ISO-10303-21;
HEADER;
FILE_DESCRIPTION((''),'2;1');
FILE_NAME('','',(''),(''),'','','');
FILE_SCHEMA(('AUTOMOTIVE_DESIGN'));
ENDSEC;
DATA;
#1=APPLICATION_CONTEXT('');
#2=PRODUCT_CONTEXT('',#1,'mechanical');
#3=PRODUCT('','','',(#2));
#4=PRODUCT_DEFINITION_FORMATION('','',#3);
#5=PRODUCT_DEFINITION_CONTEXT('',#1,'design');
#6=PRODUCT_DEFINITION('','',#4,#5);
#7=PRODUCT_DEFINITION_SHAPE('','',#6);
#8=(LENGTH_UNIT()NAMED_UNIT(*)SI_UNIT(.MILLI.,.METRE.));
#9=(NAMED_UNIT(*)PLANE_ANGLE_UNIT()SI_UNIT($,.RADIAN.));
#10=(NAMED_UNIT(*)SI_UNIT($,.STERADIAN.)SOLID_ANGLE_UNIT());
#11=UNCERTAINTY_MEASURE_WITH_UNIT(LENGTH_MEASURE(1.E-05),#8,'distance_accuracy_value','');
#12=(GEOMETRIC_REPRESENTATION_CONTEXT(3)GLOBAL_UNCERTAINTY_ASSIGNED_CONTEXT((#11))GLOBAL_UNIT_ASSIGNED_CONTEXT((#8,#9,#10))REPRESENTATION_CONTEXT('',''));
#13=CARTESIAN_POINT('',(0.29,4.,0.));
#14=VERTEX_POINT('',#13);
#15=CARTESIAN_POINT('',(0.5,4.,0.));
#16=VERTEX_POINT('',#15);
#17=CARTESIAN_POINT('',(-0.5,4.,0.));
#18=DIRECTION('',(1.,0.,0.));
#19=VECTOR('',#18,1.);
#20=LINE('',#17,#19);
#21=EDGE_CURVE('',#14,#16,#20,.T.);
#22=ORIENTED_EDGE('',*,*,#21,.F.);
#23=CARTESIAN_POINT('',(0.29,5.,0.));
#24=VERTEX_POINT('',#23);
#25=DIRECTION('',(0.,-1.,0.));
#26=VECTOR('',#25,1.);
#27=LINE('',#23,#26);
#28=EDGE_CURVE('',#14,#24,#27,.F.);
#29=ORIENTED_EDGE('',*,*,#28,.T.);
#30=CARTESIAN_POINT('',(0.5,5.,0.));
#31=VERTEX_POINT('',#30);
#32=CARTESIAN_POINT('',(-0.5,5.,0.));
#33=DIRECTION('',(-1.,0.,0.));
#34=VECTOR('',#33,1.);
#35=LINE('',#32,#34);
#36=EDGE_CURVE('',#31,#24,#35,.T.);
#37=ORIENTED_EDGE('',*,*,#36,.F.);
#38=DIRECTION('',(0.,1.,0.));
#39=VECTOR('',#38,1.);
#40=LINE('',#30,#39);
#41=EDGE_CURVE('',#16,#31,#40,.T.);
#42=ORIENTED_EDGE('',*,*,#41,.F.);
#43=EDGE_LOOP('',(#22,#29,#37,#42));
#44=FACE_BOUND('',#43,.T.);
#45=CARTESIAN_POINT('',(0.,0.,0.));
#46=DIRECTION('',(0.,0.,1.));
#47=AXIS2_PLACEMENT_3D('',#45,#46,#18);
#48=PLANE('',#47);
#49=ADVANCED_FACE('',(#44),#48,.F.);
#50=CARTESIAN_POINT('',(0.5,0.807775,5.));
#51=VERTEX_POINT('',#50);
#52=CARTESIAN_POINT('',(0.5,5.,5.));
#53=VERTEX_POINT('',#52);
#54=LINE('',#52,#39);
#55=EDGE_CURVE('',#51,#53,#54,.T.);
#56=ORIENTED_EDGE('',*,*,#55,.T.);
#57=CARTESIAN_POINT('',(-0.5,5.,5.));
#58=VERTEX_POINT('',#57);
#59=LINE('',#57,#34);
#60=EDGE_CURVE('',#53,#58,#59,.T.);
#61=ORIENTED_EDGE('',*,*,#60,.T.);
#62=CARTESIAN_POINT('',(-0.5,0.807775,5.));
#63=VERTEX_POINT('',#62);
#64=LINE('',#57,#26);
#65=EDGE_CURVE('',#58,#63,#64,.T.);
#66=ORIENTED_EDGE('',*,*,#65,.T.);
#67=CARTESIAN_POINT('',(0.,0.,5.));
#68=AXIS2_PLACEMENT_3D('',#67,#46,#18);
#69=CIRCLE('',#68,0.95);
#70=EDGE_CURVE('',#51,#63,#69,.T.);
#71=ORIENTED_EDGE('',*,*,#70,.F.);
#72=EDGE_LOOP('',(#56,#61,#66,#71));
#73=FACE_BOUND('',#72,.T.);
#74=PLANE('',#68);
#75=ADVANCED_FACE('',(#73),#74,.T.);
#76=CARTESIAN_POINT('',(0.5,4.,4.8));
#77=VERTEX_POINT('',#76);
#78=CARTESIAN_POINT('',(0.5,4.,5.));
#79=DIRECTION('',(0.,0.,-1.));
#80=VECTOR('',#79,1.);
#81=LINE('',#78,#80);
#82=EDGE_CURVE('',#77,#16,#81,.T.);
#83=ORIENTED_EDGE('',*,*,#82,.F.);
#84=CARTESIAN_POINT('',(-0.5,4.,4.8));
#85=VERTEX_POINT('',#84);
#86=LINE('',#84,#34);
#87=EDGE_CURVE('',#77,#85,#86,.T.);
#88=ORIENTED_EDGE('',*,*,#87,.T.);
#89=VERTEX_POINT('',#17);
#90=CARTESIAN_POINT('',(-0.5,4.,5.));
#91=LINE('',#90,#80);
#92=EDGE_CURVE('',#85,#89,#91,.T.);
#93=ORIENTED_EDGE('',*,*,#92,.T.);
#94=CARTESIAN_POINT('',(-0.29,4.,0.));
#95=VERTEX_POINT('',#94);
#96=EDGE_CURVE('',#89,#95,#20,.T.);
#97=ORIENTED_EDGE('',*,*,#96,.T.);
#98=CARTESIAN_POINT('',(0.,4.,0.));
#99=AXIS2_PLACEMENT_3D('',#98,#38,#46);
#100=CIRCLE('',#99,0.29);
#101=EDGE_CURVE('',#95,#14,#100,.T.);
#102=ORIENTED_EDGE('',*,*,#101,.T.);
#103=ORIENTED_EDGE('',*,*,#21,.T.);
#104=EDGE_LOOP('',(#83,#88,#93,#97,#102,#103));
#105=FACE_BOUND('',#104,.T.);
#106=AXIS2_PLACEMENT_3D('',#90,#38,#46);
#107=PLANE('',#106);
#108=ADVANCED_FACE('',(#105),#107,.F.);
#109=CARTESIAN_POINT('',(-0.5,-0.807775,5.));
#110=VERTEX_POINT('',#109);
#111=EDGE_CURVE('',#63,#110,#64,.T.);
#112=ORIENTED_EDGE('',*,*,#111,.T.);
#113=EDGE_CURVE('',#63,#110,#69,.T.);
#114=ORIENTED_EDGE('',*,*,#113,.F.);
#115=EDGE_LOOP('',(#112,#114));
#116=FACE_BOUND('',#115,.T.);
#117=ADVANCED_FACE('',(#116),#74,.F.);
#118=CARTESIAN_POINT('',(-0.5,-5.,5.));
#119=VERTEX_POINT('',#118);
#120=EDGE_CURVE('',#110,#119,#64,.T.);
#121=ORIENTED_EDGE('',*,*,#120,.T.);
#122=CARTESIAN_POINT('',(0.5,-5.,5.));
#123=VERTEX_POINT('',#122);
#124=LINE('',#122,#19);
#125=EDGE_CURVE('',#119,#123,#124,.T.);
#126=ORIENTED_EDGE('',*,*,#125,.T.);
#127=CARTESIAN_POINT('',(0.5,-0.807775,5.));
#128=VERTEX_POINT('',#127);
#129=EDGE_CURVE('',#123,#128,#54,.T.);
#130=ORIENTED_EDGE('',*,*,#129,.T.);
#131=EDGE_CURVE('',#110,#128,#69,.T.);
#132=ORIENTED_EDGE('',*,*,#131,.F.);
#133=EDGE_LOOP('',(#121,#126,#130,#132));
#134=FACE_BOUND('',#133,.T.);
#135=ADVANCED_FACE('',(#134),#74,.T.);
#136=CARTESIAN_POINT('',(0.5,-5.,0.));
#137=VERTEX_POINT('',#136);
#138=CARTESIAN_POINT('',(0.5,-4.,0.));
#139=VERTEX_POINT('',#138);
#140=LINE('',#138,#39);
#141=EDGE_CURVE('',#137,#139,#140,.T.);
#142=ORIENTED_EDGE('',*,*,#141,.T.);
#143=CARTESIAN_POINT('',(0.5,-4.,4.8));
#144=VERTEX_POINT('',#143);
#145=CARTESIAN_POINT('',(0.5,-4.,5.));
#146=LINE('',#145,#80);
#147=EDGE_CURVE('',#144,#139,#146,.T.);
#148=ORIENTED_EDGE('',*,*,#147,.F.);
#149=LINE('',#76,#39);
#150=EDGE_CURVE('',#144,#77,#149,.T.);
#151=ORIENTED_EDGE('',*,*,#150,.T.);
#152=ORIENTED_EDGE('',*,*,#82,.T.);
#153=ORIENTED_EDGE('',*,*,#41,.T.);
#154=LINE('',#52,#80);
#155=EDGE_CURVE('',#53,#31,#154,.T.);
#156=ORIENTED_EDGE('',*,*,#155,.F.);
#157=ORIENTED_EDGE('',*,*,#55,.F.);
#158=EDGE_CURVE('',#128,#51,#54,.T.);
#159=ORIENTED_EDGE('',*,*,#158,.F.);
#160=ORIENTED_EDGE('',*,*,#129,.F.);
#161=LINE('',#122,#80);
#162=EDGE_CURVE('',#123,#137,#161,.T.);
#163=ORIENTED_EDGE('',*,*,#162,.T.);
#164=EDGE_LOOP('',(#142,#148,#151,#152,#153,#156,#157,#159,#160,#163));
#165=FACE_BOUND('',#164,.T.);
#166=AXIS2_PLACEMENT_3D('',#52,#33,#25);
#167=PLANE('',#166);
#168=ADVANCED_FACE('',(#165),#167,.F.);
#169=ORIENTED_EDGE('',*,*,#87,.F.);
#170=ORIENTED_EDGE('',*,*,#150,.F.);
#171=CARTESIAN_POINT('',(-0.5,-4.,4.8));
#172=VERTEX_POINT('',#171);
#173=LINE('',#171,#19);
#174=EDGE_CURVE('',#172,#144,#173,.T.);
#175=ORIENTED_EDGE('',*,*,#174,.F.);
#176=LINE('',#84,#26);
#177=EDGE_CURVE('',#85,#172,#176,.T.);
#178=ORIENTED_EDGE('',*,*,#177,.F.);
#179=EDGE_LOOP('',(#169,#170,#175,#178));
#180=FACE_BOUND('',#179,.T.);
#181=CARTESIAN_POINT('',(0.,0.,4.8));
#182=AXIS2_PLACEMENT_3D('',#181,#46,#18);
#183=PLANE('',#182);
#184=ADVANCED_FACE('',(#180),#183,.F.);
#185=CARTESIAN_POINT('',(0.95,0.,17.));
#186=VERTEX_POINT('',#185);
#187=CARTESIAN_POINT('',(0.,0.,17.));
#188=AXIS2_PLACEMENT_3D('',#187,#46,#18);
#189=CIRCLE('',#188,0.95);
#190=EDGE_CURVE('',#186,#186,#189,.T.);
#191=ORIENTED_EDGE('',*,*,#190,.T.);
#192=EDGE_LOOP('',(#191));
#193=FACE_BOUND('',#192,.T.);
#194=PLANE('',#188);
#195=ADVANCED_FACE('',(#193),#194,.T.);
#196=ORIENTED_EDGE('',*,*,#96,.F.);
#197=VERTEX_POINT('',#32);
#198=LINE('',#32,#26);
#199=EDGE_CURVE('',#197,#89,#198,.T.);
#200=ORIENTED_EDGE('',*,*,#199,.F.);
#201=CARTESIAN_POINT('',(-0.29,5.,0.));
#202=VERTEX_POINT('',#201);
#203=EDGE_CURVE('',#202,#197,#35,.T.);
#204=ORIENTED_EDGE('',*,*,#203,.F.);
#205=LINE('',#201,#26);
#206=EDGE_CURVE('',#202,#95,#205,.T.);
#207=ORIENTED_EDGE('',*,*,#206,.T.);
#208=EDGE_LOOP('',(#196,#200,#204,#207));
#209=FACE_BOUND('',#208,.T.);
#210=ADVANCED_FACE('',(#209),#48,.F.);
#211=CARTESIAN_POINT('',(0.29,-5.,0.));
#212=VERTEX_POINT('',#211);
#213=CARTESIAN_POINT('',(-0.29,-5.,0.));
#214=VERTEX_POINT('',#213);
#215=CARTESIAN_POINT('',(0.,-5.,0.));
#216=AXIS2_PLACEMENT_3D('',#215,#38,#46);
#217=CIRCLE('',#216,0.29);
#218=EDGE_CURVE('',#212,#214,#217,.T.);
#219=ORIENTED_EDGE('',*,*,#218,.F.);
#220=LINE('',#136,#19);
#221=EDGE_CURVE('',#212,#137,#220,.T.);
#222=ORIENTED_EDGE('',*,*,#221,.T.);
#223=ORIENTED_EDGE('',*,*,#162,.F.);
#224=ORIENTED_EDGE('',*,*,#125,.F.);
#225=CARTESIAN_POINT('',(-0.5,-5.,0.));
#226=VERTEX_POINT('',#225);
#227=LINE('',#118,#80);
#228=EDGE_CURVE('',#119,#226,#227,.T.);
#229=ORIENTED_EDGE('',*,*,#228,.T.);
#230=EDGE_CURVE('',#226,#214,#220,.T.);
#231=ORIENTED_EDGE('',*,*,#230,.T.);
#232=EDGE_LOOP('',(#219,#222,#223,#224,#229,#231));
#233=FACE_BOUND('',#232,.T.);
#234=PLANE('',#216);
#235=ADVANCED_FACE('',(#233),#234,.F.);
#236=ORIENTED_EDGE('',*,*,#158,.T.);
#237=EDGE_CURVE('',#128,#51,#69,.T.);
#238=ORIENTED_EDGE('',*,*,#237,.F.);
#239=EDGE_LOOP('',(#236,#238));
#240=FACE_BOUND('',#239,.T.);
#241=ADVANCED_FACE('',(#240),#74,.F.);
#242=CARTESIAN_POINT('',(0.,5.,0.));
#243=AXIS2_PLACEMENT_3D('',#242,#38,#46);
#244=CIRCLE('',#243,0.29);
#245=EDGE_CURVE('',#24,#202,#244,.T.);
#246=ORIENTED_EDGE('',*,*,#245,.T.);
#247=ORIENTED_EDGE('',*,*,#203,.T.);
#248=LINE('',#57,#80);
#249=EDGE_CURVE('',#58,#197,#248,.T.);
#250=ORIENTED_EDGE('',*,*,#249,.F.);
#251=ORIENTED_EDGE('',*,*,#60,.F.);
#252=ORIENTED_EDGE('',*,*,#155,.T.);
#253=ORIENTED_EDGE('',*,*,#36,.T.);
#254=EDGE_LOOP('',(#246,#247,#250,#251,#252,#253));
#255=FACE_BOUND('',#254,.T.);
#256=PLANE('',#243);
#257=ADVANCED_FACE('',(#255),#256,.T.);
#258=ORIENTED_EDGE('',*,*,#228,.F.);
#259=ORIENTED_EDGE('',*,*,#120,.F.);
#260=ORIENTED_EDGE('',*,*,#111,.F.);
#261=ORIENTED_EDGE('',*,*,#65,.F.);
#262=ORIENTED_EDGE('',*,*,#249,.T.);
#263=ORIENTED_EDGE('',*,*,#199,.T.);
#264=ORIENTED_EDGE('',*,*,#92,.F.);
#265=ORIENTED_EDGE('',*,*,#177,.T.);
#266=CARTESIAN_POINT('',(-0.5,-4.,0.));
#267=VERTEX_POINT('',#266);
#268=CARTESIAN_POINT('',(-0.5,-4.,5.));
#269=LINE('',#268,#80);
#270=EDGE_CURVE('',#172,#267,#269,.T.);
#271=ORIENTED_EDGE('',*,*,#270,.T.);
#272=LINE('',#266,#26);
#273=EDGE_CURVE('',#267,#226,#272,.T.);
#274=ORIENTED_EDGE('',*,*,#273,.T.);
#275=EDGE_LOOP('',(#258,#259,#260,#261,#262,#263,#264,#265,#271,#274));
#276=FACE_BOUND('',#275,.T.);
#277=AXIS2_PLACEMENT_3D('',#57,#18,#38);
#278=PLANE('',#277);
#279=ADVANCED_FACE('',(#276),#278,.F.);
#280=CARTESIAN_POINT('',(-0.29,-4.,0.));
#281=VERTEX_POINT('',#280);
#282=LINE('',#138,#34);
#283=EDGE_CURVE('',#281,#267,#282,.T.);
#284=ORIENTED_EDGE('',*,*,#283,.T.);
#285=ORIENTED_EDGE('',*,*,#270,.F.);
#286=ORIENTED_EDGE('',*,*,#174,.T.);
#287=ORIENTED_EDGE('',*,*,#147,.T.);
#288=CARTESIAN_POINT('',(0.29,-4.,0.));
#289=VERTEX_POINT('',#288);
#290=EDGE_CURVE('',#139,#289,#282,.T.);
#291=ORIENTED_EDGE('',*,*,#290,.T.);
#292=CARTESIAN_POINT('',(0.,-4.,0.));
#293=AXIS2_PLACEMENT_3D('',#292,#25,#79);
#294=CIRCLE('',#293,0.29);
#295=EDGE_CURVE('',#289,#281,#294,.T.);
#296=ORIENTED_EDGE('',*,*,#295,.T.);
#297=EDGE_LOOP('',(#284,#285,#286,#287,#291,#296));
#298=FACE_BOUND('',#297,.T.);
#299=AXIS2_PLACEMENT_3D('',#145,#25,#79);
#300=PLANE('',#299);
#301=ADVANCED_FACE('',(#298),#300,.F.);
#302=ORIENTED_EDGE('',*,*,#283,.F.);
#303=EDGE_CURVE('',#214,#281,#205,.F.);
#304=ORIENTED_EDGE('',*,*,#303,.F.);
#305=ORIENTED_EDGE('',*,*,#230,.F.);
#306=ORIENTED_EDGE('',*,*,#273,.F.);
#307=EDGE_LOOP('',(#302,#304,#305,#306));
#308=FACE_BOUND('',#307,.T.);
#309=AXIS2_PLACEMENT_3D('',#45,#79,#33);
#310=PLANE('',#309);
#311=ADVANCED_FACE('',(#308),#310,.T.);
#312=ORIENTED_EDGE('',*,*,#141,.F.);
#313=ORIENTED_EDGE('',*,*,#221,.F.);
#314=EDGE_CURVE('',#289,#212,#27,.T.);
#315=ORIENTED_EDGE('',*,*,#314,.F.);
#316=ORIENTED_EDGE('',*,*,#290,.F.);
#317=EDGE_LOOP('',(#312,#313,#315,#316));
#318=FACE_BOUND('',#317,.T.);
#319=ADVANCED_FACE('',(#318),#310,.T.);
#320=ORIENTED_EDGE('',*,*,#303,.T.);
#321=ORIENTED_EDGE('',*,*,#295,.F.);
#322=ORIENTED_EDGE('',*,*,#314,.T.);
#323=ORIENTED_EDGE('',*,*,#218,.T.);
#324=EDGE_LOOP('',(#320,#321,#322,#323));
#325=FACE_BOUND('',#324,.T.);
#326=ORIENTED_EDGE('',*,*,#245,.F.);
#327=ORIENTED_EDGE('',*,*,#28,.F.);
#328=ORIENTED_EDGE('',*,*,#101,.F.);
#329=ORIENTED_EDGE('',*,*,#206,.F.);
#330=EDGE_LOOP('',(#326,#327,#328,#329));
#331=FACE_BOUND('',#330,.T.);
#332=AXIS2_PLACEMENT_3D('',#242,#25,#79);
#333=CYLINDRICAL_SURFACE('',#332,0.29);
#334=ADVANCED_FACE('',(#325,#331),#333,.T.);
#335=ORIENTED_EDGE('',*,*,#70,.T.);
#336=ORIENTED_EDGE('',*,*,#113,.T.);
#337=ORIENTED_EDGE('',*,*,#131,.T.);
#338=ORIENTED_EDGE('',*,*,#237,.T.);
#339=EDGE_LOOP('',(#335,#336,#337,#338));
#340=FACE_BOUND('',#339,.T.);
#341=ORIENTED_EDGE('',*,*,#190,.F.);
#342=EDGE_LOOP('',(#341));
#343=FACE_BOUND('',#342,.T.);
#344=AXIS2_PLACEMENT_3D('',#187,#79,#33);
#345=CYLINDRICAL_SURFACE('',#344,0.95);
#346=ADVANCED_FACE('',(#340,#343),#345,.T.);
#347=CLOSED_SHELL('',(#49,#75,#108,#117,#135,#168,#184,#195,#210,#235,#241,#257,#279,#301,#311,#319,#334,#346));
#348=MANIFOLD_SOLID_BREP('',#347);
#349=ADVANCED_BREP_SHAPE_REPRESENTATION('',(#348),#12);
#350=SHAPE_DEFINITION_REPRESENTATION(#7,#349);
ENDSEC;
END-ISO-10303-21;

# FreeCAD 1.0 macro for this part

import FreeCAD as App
import Part
import Sketcher
Q = App.Units.Quantity

doc = App.newDocument("Part")
body = doc.addObject("PartDesign::Body", "Body")

# Sketch on XZ plane
sketch1 = body.newObject("Sketcher::SketchObject", "Sketch")
sketch1.AttachmentSupport = (doc.getObject("XZ_Plane"), [""])
sketch1.MapMode = "FlatFace"
sketch1.addGeometry(Part.Circle(App.Vector(0, 0, 0), App.Vector(0, 0, 1), 0.29), False)
sketch1.addConstraint([
    Sketcher.Constraint("Coincident", 0, 3, -1, 1),
    Sketcher.Constraint("Diameter", 0, Q("0.58 mm")),
])
pad1 = body.newObject("PartDesign::Pad", "Pad")
pad1.Profile = sketch1
pad1.Length = 10
pad1.Midplane = True

# Sketch on XY plane
sketch2 = body.newObject("Sketcher::SketchObject", "Sketch001")
sketch2.AttachmentSupport = (doc.getObject("XY_Plane"), [""])
sketch2.MapMode = "FlatFace"
sketch2.addGeometry([
    Part.LineSegment(App.Vector(-0.5, 5, 0), App.Vector(-0.5, 4, 0)),  # 0
    Part.LineSegment(App.Vector(-0.5, 4, 0), App.Vector(0.5, 4, 0)),  # 1
    Part.LineSegment(App.Vector(0.5, 4, 0), App.Vector(0.5, 5, 0)),  # 2
    Part.LineSegment(App.Vector(0.5, 5, 0), App.Vector(-0.5, 5, 0)),  # 3
    Part.LineSegment(App.Vector(-0.5, -4, 0), App.Vector(-0.5, -5, 0)),  # 4
    Part.LineSegment(App.Vector(-0.5, -5, 0), App.Vector(0.5, -5, 0)),  # 5
    Part.LineSegment(App.Vector(0.5, -5, 0), App.Vector(0.5, -4, 0)),  # 6
    Part.LineSegment(App.Vector(0.5, -4, 0), App.Vector(-0.5, -4, 0)),  # 7
], False)
sketch2.addConstraint([
    Sketcher.Constraint("Coincident", 0, 2, 1, 1),
    Sketcher.Constraint("Coincident", 1, 2, 2, 1),
    Sketcher.Constraint("Coincident", 2, 2, 3, 1),
    Sketcher.Constraint("Coincident", 3, 2, 0, 1),
    Sketcher.Constraint("Coincident", 4, 2, 5, 1),
    Sketcher.Constraint("Coincident", 5, 2, 6, 1),
    Sketcher.Constraint("Coincident", 6, 2, 7, 1),
    Sketcher.Constraint("Coincident", 7, 2, 4, 1),
    Sketcher.Constraint("Vertical", 0),
    Sketcher.Constraint("Horizontal", 1),
    Sketcher.Constraint("Vertical", 2),
    Sketcher.Constraint("Horizontal", 3),
    Sketcher.Constraint("Vertical", 4),
    Sketcher.Constraint("Horizontal", 5),
    Sketcher.Constraint("Vertical", 6),
    Sketcher.Constraint("Horizontal", 7),
    Sketcher.Constraint("Symmetric", 2, 2, 4, 2, -1, 1),
    Sketcher.Constraint("Symmetric", 0, 2, 6, 2, -1, 1),
    Sketcher.Constraint("Vertical", 3, 2, 4, 2),
    Sketcher.Constraint("Equal", 7, 0),
    Sketcher.Constraint("DistanceX", 1, 1, 1, 2, Q("1 mm")),
    Sketcher.Constraint("DistanceY", -1, 1, 0, 2, Q("4 mm")),
])
pad2 = body.newObject("PartDesign::Pad", "Pad001")
pad2.Profile = sketch2
pad2.Length = 5

# Sketch on XY plane
sketch3 = body.newObject("Sketcher::SketchObject", "Sketch002")
sketch3.AttachmentSupport = (doc.getObject("XY_Plane"), [""])
sketch3.MapMode = "FlatFace"
sketch3.AttachmentOffset = App.Placement(App.Vector(0, 0, 5), App.Rotation())
sketch3.addGeometry([
    Part.LineSegment(App.Vector(-0.5, 4, 0), App.Vector(-0.5, -4, 0)),
    Part.LineSegment(App.Vector(-0.5, -4, 0), App.Vector(0.5, -4, 0)),
    Part.LineSegment(App.Vector(0.5, -4, 0), App.Vector(0.5, 4, 0)),
    Part.LineSegment(App.Vector(0.5, 4, 0), App.Vector(-0.5, 4, 0)),
], False)
sketch3.addConstraint([
    Sketcher.Constraint("Coincident", 0, 2, 1, 1),
    Sketcher.Constraint("Coincident", 1, 2, 2, 1),
    Sketcher.Constraint("Coincident", 2, 2, 3, 1),
    Sketcher.Constraint("Coincident", 3, 2, 0, 1),
    Sketcher.Constraint("Vertical", 0),
    Sketcher.Constraint("Horizontal", 1),
    Sketcher.Constraint("Vertical", 2),
    Sketcher.Constraint("Horizontal", 3),
    Sketcher.Constraint("Symmetric", 0, 2, 2, 2, -1, 1),
    Sketcher.Constraint("DistanceX", 1, 1, 1, 2, Q("1 mm")),
    Sketcher.Constraint("DistanceY", 0, 2, 0, 1, Q("8 mm")),
])
pad3 = body.newObject("PartDesign::Pad", "Pad002")
pad3.Profile = sketch3
pad3.Length = 0.2
pad3.Reversed = True

# Sketch on XY plane
sketch4 = body.newObject("Sketcher::SketchObject", "Sketch003")
sketch4.AttachmentSupport = (doc.getObject("XY_Plane"), [""])
sketch4.MapMode = "FlatFace"
sketch4.AttachmentOffset = App.Placement(App.Vector(0, 0, 5), App.Rotation())
sketch4.addGeometry(Part.Circle(App.Vector(0, 0, 0), App.Vector(0, 0, 1), 0.95), False)
sketch4.addConstraint([
    Sketcher.Constraint("Coincident", 0, 3, -1, 1),
    Sketcher.Constraint("Diameter", 0, Q("1.9 mm")),
])
pad4 = body.newObject("PartDesign::Pad", "Pad003")
pad4.Profile = sketch4
pad4.Length = 12

doc.recompute()
